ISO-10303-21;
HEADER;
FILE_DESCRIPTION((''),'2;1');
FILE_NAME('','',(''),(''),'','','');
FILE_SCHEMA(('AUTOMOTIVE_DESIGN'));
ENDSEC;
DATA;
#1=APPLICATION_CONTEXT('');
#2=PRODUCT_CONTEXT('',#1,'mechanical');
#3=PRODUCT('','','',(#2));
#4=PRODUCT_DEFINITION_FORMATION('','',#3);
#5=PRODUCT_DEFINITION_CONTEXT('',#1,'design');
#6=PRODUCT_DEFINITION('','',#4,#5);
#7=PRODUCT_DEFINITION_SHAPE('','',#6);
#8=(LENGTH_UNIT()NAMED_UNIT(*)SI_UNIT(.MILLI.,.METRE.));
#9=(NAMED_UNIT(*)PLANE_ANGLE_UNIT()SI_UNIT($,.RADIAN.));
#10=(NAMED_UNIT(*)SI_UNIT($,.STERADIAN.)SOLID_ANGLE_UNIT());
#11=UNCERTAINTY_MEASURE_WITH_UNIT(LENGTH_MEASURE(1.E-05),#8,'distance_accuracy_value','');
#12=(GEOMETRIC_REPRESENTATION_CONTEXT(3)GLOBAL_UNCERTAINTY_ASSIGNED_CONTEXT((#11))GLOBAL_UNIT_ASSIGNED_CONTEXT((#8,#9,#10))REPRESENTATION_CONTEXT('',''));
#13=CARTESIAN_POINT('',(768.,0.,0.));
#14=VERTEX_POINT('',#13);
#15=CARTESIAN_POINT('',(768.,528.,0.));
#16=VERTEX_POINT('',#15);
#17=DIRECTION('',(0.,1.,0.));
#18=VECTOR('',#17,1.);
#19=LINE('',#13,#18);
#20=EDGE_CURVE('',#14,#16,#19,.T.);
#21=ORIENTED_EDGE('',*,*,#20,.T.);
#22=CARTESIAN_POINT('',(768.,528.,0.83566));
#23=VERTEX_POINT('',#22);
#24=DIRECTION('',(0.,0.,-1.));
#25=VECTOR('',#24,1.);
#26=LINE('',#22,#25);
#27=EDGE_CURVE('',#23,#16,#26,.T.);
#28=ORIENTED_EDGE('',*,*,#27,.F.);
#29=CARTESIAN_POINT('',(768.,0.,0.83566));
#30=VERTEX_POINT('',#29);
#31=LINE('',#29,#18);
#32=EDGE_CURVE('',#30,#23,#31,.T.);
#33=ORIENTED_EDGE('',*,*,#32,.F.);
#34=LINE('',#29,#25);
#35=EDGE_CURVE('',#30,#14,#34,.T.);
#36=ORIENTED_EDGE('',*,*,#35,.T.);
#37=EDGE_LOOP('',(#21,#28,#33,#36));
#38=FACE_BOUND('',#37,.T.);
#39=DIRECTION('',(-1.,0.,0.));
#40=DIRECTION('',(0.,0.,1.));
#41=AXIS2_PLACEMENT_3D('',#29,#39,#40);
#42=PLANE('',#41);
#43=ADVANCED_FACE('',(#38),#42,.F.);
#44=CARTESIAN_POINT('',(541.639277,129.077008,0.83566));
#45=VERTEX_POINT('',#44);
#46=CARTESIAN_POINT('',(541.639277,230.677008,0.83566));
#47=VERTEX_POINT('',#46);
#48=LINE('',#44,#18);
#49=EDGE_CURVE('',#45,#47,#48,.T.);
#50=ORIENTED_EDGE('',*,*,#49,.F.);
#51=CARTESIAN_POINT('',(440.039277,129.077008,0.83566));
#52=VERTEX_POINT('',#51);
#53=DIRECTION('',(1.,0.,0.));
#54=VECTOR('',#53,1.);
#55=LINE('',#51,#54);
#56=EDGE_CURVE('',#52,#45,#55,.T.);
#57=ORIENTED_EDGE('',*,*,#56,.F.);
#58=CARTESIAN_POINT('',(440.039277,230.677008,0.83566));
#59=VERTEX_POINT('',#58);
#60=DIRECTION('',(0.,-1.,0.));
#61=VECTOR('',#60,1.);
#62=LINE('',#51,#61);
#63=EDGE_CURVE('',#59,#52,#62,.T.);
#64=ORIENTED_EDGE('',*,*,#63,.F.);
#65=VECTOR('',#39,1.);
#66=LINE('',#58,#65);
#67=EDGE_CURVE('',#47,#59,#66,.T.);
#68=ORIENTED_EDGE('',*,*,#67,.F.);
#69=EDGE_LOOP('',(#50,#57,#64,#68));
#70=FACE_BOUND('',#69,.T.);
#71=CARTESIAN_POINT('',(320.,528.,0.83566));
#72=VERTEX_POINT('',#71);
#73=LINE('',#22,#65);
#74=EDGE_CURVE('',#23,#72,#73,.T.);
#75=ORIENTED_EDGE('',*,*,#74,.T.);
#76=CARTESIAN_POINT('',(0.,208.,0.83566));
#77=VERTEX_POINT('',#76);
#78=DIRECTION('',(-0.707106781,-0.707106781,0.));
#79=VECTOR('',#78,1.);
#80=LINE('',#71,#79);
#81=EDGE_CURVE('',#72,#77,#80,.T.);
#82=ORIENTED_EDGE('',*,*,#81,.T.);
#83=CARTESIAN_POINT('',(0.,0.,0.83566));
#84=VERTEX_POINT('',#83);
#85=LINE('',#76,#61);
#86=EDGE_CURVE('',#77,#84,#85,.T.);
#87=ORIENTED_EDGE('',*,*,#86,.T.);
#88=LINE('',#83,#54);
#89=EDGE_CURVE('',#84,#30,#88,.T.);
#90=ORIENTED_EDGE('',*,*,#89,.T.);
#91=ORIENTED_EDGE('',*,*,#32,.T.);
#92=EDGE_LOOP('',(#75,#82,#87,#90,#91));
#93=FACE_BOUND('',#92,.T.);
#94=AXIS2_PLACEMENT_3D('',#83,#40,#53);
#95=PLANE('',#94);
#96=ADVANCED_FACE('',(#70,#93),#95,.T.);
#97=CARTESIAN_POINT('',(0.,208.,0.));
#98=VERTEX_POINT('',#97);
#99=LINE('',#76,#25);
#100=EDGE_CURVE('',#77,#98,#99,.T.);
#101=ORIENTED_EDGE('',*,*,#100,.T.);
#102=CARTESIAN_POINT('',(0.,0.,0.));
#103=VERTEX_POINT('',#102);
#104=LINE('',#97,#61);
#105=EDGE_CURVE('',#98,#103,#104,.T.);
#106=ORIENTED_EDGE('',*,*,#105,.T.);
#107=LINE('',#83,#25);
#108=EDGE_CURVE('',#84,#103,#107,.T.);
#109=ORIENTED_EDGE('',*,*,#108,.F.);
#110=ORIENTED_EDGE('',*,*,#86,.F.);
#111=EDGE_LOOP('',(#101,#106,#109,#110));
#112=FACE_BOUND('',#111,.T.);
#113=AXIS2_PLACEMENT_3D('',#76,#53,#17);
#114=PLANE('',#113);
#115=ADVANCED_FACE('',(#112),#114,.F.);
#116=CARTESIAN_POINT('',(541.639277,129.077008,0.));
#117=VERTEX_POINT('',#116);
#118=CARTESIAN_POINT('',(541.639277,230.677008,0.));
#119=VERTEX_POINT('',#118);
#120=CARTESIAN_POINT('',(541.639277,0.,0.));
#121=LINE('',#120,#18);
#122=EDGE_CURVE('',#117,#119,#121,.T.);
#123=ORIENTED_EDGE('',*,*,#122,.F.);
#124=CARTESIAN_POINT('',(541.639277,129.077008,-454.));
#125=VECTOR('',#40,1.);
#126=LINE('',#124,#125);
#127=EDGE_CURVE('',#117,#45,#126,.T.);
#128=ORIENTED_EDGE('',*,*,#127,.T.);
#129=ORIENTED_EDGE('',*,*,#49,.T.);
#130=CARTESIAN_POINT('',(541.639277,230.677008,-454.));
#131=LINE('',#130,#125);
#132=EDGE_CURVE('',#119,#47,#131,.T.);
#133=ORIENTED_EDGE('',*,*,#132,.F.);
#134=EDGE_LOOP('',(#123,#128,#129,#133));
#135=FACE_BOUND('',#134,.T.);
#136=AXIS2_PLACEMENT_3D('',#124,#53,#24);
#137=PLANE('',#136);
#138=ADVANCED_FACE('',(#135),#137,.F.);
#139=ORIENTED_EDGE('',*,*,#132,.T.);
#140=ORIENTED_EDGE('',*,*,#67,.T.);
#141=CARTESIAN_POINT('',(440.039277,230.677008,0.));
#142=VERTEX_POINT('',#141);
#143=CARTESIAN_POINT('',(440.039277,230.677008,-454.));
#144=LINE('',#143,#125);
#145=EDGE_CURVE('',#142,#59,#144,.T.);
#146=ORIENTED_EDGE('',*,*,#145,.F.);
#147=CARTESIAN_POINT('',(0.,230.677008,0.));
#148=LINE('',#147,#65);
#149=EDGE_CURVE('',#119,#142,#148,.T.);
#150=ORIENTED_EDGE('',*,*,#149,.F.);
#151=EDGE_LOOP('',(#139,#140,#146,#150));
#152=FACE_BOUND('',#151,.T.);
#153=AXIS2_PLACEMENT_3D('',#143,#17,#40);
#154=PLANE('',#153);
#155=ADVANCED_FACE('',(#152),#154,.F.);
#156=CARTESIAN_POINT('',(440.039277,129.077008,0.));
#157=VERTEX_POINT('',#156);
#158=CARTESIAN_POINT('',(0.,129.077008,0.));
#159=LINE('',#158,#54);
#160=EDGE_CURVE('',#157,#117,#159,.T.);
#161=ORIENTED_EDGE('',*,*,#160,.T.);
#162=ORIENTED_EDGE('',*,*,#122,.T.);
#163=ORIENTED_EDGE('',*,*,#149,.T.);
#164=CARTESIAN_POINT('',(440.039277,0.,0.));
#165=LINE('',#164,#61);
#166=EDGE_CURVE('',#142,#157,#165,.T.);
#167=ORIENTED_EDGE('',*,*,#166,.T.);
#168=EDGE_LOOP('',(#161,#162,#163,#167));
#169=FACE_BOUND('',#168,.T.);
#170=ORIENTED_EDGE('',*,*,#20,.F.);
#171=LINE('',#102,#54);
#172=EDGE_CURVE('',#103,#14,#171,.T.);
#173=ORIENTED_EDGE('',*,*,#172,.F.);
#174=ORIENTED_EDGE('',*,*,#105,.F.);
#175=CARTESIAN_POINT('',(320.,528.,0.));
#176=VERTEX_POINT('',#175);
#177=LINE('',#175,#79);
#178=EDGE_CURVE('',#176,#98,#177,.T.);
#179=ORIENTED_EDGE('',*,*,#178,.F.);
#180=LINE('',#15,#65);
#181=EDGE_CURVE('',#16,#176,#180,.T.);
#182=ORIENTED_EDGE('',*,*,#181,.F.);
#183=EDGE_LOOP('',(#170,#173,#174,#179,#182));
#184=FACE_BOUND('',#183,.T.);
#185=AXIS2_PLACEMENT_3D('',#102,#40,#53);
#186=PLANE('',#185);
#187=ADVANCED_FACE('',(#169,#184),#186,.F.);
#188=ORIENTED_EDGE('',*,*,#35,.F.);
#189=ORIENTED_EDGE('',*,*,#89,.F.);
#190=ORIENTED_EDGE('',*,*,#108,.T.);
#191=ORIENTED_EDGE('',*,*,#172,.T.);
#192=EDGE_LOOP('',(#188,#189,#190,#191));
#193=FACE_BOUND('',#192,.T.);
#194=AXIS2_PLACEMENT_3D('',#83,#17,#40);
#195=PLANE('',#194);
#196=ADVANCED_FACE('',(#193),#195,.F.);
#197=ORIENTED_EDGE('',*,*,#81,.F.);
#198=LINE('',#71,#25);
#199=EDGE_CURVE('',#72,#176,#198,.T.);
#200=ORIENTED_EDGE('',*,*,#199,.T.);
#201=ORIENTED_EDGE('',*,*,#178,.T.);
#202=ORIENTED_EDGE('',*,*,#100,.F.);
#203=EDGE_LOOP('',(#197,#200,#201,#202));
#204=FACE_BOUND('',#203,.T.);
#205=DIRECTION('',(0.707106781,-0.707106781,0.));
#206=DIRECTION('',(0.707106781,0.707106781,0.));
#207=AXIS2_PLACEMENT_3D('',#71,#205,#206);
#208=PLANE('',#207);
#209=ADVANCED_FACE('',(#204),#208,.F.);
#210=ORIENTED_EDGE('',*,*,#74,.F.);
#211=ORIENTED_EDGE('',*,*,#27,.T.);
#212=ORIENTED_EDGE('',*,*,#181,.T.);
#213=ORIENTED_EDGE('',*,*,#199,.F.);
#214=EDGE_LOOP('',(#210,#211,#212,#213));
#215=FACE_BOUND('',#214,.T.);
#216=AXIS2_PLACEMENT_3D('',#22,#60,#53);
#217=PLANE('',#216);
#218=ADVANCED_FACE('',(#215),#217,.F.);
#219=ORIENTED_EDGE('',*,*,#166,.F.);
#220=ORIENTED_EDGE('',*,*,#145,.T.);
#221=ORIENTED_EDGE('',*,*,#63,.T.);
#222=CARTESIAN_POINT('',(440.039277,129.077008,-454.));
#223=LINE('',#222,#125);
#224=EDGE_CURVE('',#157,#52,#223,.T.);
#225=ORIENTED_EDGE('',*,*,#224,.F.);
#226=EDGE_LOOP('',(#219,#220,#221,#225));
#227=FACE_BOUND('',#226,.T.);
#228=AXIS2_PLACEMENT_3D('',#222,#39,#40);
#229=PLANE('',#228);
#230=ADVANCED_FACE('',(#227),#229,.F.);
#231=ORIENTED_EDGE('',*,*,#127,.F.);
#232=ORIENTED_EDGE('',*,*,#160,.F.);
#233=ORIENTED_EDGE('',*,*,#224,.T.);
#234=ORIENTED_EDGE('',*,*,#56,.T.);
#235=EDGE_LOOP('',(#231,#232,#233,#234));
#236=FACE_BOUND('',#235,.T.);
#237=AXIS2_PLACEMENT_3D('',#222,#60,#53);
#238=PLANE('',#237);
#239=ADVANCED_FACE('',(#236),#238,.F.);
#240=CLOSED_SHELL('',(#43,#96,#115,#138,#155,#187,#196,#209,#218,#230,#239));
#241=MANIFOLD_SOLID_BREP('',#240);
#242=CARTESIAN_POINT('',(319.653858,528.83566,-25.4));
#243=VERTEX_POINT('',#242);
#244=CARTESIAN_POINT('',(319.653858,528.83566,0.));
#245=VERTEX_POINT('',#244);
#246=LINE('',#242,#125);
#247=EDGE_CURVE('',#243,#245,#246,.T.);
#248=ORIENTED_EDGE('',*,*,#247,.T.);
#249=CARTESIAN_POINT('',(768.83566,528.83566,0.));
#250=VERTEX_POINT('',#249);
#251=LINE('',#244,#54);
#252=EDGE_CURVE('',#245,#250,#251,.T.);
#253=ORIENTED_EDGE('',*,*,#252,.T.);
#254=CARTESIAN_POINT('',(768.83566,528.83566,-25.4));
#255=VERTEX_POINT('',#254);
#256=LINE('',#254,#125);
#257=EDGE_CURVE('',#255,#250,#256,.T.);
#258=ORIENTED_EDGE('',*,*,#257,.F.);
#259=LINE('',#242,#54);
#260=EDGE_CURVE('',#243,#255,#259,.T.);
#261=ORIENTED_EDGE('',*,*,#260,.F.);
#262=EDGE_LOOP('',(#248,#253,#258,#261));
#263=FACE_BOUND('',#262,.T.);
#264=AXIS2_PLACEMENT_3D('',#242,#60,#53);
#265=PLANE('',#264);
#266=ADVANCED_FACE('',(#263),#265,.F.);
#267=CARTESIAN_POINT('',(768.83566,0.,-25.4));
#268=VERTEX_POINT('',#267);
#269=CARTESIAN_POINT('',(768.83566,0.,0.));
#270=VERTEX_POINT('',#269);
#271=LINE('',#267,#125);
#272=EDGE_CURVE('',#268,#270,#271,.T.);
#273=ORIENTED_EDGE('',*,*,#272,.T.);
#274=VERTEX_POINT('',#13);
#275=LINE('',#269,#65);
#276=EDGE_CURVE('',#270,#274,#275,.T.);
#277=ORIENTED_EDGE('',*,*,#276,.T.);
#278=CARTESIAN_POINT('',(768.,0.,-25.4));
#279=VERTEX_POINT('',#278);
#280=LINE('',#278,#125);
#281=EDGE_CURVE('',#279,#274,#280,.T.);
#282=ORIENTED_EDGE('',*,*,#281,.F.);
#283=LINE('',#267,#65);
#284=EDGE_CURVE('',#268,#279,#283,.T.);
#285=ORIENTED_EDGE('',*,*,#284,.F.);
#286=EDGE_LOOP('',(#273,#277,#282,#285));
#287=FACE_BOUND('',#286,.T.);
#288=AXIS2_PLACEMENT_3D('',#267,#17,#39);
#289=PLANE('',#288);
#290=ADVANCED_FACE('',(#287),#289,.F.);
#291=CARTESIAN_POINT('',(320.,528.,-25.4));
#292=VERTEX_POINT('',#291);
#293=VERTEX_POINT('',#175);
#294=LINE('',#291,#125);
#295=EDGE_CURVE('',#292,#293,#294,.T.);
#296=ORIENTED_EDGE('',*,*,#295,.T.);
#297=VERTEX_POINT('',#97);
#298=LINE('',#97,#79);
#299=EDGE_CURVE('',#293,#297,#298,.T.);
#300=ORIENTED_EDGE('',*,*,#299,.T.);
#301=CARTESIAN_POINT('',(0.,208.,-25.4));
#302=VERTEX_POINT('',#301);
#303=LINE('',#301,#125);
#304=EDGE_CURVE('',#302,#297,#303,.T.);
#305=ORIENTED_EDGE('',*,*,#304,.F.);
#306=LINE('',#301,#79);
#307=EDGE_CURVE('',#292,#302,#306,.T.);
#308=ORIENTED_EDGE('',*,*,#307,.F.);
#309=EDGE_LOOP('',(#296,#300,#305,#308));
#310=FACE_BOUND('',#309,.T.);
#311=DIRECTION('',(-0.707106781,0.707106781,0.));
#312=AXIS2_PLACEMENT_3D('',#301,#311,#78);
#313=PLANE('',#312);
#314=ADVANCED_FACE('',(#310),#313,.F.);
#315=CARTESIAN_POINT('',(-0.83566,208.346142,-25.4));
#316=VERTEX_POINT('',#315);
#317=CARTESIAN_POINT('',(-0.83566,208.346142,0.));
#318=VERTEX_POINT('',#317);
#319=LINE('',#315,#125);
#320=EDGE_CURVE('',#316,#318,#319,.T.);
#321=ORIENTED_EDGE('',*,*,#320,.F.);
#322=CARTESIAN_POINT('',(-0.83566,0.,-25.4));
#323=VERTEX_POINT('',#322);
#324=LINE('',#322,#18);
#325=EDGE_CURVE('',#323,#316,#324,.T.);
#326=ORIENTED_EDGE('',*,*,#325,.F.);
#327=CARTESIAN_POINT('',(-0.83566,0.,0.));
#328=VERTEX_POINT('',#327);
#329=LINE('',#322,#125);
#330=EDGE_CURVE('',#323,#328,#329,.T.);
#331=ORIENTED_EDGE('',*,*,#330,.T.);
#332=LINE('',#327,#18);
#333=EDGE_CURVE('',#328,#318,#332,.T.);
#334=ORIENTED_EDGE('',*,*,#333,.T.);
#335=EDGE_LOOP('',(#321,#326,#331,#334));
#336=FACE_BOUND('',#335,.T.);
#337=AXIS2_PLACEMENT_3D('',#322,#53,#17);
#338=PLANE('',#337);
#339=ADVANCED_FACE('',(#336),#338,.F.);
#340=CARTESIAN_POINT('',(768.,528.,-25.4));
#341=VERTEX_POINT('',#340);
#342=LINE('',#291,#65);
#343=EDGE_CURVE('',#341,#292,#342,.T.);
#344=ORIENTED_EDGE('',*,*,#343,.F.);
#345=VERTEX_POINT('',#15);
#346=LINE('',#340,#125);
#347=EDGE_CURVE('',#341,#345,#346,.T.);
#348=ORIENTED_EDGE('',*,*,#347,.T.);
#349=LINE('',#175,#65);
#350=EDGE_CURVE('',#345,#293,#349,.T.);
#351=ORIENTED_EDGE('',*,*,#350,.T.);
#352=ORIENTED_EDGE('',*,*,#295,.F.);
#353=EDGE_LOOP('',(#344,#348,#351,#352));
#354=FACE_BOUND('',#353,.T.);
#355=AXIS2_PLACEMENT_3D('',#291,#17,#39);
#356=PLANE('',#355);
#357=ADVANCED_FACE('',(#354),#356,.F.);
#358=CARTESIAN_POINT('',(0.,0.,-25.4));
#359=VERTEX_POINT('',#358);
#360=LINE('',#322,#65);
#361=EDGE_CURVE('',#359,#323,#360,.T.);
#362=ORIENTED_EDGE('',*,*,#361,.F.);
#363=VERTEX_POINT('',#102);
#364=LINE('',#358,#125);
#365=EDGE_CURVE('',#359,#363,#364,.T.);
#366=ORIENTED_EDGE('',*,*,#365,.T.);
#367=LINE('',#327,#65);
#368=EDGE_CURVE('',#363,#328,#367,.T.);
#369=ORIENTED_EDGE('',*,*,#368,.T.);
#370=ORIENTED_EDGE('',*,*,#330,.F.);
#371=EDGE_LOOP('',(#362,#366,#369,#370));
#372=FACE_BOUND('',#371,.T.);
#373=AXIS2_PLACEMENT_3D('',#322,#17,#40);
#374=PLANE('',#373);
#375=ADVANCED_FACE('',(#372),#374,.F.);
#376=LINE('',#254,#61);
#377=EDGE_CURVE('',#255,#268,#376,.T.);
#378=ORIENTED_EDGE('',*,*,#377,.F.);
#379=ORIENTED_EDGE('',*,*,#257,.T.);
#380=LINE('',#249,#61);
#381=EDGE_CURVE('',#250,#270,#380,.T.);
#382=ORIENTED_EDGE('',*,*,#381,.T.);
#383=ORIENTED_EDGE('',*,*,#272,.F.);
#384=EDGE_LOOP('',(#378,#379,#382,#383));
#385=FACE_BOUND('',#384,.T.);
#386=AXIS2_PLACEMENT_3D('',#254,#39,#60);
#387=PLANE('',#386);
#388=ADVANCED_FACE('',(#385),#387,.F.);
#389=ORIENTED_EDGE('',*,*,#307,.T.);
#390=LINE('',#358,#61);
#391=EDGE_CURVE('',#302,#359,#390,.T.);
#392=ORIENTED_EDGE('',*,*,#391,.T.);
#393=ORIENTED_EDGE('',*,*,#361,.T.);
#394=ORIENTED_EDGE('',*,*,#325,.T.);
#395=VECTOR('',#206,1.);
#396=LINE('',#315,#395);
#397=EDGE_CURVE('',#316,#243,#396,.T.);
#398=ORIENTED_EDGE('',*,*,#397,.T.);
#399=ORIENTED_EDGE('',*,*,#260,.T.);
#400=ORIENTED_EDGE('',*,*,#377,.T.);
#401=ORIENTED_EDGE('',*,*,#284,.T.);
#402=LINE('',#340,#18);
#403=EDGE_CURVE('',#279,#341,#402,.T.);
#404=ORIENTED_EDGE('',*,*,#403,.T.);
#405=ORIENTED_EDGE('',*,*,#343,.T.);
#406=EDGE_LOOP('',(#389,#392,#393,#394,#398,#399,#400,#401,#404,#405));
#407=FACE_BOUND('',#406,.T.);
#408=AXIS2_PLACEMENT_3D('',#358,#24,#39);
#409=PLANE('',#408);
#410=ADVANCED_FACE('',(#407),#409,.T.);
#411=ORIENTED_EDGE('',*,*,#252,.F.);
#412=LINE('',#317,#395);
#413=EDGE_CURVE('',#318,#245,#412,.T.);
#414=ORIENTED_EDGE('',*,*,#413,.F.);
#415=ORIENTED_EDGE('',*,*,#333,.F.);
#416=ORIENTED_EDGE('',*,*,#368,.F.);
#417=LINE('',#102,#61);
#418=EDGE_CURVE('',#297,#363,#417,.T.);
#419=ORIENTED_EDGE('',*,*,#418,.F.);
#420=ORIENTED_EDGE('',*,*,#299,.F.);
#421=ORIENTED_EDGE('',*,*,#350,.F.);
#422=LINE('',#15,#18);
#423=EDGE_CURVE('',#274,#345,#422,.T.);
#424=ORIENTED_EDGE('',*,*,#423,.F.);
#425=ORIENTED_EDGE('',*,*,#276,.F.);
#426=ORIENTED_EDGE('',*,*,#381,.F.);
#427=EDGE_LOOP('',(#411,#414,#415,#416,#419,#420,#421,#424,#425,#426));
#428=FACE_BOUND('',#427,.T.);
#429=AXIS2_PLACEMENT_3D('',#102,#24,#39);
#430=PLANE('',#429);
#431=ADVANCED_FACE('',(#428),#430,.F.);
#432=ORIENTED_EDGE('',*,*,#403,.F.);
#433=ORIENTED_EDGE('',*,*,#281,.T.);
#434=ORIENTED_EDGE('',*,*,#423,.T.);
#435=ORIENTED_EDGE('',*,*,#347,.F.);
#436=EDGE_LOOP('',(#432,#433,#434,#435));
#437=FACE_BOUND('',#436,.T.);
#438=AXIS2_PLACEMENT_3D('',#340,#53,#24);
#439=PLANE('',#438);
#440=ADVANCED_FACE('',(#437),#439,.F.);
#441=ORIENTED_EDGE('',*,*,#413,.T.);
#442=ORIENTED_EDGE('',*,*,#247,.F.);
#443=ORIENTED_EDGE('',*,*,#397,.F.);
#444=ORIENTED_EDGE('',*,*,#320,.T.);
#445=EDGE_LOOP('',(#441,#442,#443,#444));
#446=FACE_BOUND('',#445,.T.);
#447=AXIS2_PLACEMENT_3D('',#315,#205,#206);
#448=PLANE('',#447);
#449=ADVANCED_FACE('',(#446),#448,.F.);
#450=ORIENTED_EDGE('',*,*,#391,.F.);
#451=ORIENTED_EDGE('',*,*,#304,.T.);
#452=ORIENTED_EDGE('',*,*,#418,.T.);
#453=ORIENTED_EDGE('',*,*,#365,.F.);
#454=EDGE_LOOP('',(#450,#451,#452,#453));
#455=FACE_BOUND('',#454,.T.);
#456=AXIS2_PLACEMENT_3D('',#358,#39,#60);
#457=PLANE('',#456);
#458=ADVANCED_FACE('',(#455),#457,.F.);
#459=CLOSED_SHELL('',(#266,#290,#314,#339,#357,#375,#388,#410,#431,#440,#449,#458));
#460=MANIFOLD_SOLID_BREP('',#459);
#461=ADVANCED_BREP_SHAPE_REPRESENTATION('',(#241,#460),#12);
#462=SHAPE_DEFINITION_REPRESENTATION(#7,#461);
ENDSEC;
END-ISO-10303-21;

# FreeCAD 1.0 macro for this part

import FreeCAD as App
import Part
import Sketcher

V = App.Vector
Q = App.Units.Quantity


def add_polygon(sketch, points):
    """Adds a closed chain of lines whose ends are joined by coincident constraints."""
    first, n = sketch.GeometryCount, len(points)
    for a, b in zip(points, points[1:] + points[:1]):
        sketch.addGeometry(Part.LineSegment(App.Vector(*a, 0), App.Vector(*b, 0)), False)
    for i in range(n):
        sketch.addConstraint(Sketcher.Constraint("Coincident", first + i, 2, first + (i + 1) % n, 1))

doc = App.newDocument("Part")
body = doc.addObject("PartDesign::Body", "Body")

sketch1 = body.newObject("Sketcher::SketchObject", "Sketch")
sketch1.AttachmentSupport = (doc.getObject("XY_Plane"), [""])
sketch1.MapMode = "FlatFace"
add_polygon(sketch1, [(0, 0), (768, 0), (768, 528), (320, 528), (0, 208)])
sketch1.addConstraint(Sketcher.Constraint("Horizontal", 0))
sketch1.addConstraint(Sketcher.Constraint("Vertical", 1))
sketch1.addConstraint(Sketcher.Constraint("Horizontal", 2))
sketch1.addConstraint(Sketcher.Constraint("Vertical", 4))
sketch1.addConstraint(Sketcher.Constraint("Coincident", 4, 2, -1, 1))
sketch1.addConstraint(Sketcher.Constraint("DistanceX", 0, 1, 0, 2, 768.0))
sketch1.addConstraint(Sketcher.Constraint("DistanceX", 2, 2, 2, 1, 448.0))
sketch1.addConstraint(Sketcher.Constraint("DistanceY", 1, 1, 1, 2, 528.0))
sketch1.addConstraint(Sketcher.Constraint("DistanceY", 4, 2, 4, 1, 208.0))
pad1 = body.newObject("PartDesign::Pad", "Pad")
pad1.Profile = sketch1
pad1.Length = 0.83566

sketch2 = body.newObject("Sketcher::SketchObject", "Sketch001")
sketch2.AttachmentSupport = (doc.getObject("XY_Plane"), [""])
sketch2.MapMode = "FlatFace"
sketch2.AttachmentOffset = App.Placement(V(0, 0, 0.83566), App.Rotation())
add_polygon(sketch2, [(440.039277, 230.677008), (440.039277, 129.077008), (541.639277, 129.077008), (541.639277, 230.677008)])
sketch2.addConstraint(Sketcher.Constraint("Vertical", 0))
sketch2.addConstraint(Sketcher.Constraint("Horizontal", 1))
sketch2.addConstraint(Sketcher.Constraint("Vertical", 2))
sketch2.addConstraint(Sketcher.Constraint("Horizontal", 3))
sketch2.addConstraint(Sketcher.Constraint("Equal", 3, 0))
sketch2.addConstraint(Sketcher.Constraint("DistanceX", 1, 1, 1, 2, 101.6))
sketch2.addConstraint(Sketcher.Constraint("DistanceX", -1, 1, 0, 2, 440.039277))
sketch2.addConstraint(Sketcher.Constraint("DistanceY", -1, 1, 0, 2, 129.077008))
pocket1 = body.newObject("PartDesign::Pocket", "Pocket")
pocket1.Profile = sketch2
pocket1.Length = 454.83566
body2 = doc.addObject("PartDesign::Body", "Body001")

sketch3 = body2.newObject("Sketcher::SketchObject", "Sketch002")
sketch3.AttachmentSupport = (doc.getObject("XY_Plane001"), [""])
sketch3.MapMode = "FlatFace"
add_polygon(sketch3, [(-0.83566, 0), (-0.83566, 208.346142), (319.653858, 528.83566), (768.83566, 528.83566), (768.83566, 0), (768, 0), (768, 528), (320, 528), (0, 208), (0, 0)])
sketch3.addConstraint(Sketcher.Constraint("Vertical", 0))
sketch3.addConstraint(Sketcher.Constraint("Horizontal", 2))
sketch3.addConstraint(Sketcher.Constraint("Vertical", 3))
sketch3.addConstraint(Sketcher.Constraint("Horizontal", 4))
sketch3.addConstraint(Sketcher.Constraint("Vertical", 5))
sketch3.addConstraint(Sketcher.Constraint("Horizontal", 6))
sketch3.addConstraint(Sketcher.Constraint("Vertical", 8))
sketch3.addConstraint(Sketcher.Constraint("Horizontal", 9))
sketch3.addConstraint(Sketcher.Constraint("Coincident", 8, 2, -1, 1))
sketch3.addConstraint(Sketcher.Constraint("PointOnObject", 3, 2, -1))
sketch3.addConstraint(Sketcher.Constraint("Parallel", 1, 7))
sketch3.addConstraint(Sketcher.Constraint("Equal", 4, 9))
sketch3.addConstraint(Sketcher.Constraint("DistanceX", 6, 2, 6, 1, 448.0))
sketch3.addConstraint(Sketcher.Constraint("DistanceY", 5, 1, 5, 2, 528.0))
sketch3.addConstraint(Sketcher.Constraint("DistanceY", 8, 2, 8, 1, 208.0))
sketch3.addConstraint(Sketcher.Constraint("Angle", 1, Q("45 deg")))
sketch3.addConstraint(Sketcher.Constraint("DistanceX", 2, 1, 2, 2, 449.181802))
sketch3.addConstraint(Sketcher.Constraint("DistanceX", 4, 2, 4, 1, 0.83566))
sketch3.addConstraint(Sketcher.Constraint("DistanceY", 0, 1, 0, 2, 208.346142))
pad2 = body2.newObject("PartDesign::Pad", "Pad001")
pad2.Profile = sketch3
pad2.Length = 25.4
pad2.Reversed = True

doc.recompute()
